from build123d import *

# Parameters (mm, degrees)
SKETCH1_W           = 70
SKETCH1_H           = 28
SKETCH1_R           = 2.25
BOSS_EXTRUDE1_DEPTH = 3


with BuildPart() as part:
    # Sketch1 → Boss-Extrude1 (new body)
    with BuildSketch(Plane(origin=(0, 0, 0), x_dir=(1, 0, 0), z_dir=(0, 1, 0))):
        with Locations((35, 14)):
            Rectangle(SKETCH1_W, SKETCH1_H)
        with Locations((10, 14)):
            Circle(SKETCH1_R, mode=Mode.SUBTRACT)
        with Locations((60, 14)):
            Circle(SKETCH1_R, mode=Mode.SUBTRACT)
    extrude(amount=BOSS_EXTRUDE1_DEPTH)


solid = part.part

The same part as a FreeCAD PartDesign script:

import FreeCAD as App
import Part
import Sketcher

V = App.Vector


def add_polygon(sketch, points):
    """Adds a closed chain of lines whose ends are joined by coincident constraints."""
    first, n = sketch.GeometryCount, len(points)
    for a, b in zip(points, points[1:] + points[:1]):
        sketch.addGeometry(Part.LineSegment(App.Vector(*a, 0), App.Vector(*b, 0)), False)
    for i in range(n):
        sketch.addConstraint(Sketcher.Constraint("Coincident", first + i, 2, first + (i + 1) % n, 1))

doc = App.newDocument("Part")
params = doc.addObject("Spreadsheet::Sheet", "Params")
for row, (alias, value) in enumerate([
    ("sketch1_diameter", "4.5 mm"),
    ("sketch1_width", "70 mm"),
    ("sketch1_height", "28 mm"),
    ("pad1_length", "3 mm"),
], start=1):
    params.set(f"A{row}", alias)
    params.set(f"B{row}", "=" + value)
    params.setAlias(f"B{row}", alias)

body = doc.addObject("PartDesign::Body", "Body")

sketch1 = body.newObject("Sketcher::SketchObject", "Sketch")
sketch1.AttachmentSupport = (doc.getObject("XZ_Plane"), [""])
sketch1.MapMode = "FlatFace"
add_polygon(sketch1, [(0, -28), (0, 0), (70, 0), (70, -28)])
sketch1.addGeometry(Part.Circle(V(10, -14, 0), V(0, 0, 1), 2.2), False)
sketch1.addGeometry(Part.Circle(V(60, -14, 0), V(0, 0, 1), 2.2), False)
sketch1.addConstraint([
    Sketcher.Constraint("Vertical", 0),
    Sketcher.Constraint("Horizontal", 1),
    Sketcher.Constraint("Vertical", 2),
    Sketcher.Constraint("Horizontal", 3),
    Sketcher.Constraint("Coincident", 0, 2, -1, 1),
    Sketcher.Constraint("Equal", 4, 5),
    Sketcher.Constraint("Horizontal", 4, 3, 5, 3),
    Sketcher.Constraint("Diameter", 4, 4.5),
    Sketcher.Constraint("DistanceX", 1, 1, 1, 2, 70.0),
    Sketcher.Constraint("DistanceY", 0, 1, 0, 2, 28.0),
    Sketcher.Constraint("DistanceX", -1, 1, 4, 3, 10.0),
    Sketcher.Constraint("DistanceY", 4, 3, -1, 1, 14.0),
    Sketcher.Constraint("DistanceX", -1, 1, 5, 3, 60.0),
])
sketch1.setExpression("Constraints[11]", "Params.sketch1_diameter")
sketch1.setExpression("Constraints[12]", "Params.sketch1_width")
sketch1.setExpression("Constraints[13]", "Params.sketch1_height")
pad1 = body.newObject("PartDesign::Pad", "Pad")
pad1.Profile = sketch1
pad1.setExpression("Length", "Params.pad1_length")
pad1.Reversed = True

doc.recompute()
